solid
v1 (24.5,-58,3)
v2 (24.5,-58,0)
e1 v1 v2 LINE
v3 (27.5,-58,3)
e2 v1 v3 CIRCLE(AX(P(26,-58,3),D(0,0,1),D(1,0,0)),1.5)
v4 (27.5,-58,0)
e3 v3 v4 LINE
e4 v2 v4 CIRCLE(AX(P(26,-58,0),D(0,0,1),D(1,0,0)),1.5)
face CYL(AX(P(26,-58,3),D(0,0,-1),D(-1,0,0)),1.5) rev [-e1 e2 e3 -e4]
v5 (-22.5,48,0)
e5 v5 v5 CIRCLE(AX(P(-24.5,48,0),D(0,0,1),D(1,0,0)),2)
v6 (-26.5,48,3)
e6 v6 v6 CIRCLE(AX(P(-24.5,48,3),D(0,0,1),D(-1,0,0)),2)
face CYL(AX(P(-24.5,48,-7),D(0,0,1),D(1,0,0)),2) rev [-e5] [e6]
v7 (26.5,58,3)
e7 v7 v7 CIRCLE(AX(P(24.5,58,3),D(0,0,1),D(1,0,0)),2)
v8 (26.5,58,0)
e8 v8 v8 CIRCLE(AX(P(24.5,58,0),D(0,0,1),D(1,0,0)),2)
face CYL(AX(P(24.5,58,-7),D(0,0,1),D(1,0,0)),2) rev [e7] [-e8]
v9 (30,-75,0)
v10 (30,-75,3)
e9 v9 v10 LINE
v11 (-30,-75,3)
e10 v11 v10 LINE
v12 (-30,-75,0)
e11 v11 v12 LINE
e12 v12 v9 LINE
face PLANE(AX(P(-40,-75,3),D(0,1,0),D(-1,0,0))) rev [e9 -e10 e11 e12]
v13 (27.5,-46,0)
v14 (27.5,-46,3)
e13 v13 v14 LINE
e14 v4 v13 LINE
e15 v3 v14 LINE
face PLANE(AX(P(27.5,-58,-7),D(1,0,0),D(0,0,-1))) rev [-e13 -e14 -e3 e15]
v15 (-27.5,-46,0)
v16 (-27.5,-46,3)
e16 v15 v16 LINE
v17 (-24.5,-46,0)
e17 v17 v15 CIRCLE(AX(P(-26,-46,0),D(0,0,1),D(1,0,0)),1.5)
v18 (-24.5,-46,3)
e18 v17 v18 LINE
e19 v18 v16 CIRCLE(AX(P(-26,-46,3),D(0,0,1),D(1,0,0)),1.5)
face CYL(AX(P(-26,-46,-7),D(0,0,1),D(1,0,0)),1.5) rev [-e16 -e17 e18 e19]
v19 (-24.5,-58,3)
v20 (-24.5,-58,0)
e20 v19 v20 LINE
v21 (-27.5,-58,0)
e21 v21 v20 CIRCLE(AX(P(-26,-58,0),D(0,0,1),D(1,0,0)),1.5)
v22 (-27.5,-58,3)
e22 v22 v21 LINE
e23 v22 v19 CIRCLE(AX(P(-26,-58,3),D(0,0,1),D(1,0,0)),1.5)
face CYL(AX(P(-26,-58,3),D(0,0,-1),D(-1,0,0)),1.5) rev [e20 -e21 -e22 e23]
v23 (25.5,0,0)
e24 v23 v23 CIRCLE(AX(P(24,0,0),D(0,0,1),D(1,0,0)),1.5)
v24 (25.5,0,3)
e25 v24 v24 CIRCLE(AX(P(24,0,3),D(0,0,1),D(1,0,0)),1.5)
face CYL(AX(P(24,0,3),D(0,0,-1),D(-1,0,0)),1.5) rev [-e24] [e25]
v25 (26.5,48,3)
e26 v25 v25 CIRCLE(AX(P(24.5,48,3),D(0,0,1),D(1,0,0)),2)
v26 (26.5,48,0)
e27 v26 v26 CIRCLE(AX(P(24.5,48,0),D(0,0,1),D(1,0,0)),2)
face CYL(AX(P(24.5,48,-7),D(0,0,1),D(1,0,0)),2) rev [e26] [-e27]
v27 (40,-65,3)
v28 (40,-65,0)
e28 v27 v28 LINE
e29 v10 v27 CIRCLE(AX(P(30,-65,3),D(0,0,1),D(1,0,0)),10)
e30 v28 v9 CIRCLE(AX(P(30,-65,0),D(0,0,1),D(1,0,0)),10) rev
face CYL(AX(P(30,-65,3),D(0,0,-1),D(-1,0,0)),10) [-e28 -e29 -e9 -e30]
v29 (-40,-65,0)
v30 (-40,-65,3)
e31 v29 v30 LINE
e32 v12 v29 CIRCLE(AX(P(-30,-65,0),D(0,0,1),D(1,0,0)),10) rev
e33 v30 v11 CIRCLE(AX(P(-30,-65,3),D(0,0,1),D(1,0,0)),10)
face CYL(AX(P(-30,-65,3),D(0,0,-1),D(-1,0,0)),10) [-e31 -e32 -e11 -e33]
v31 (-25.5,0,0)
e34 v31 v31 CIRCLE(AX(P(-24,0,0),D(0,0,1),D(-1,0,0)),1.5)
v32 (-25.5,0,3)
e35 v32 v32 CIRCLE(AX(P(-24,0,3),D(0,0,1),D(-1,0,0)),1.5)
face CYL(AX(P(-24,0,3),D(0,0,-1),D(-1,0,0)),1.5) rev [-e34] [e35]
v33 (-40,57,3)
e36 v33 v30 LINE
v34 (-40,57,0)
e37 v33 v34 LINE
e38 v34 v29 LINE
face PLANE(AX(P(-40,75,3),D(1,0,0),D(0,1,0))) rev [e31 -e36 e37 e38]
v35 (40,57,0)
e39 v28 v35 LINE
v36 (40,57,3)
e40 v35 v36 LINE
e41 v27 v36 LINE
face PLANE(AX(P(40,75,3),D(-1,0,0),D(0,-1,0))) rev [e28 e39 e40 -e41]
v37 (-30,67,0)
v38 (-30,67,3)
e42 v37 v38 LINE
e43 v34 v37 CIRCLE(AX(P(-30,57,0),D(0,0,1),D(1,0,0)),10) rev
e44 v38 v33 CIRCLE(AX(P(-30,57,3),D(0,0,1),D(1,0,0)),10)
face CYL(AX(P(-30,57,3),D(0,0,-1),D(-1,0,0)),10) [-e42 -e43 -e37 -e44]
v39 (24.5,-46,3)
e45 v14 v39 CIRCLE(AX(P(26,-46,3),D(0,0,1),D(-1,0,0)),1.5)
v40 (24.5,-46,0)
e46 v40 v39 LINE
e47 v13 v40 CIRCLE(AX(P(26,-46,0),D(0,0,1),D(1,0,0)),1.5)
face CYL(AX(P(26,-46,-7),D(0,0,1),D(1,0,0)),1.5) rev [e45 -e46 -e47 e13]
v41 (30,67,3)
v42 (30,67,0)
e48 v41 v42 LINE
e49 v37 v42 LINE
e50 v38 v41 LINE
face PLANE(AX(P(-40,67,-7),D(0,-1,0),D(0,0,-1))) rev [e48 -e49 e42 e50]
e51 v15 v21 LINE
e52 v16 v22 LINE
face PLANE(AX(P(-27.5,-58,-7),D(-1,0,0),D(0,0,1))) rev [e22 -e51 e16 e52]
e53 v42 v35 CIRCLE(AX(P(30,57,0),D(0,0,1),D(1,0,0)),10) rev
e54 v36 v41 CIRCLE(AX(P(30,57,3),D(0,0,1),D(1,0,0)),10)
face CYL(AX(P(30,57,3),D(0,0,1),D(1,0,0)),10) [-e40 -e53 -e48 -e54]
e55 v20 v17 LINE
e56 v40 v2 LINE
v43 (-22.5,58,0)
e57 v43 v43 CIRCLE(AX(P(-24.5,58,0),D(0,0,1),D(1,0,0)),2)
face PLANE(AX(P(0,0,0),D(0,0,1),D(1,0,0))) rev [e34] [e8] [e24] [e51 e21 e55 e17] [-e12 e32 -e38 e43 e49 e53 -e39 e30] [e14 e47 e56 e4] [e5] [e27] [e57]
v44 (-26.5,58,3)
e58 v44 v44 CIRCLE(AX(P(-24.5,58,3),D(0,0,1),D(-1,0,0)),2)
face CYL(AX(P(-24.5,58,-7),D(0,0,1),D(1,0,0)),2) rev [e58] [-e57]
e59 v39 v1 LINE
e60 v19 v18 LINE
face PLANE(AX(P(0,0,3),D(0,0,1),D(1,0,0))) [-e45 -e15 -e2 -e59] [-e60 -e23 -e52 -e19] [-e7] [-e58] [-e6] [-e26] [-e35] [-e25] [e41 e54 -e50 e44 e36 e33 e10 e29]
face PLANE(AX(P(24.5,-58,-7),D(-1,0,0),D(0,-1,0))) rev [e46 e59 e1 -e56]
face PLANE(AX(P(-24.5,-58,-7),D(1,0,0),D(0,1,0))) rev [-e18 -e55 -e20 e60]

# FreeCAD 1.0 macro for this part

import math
import FreeCAD as App
import Part
import Sketcher
Q = App.Units.Quantity


def edges_at(feature, points):
    """Names of the edges that pass closest to the given points."""
    edges = feature.Shape.Edges
    near = lambda p: min(range(len(edges)), key=lambda i: edges[i].distToShape(Part.Vertex(*p))[0])
    return sorted({f"Edge{near(p) + 1}" for p in points})

doc = App.newDocument("Part")
body = doc.addObject("PartDesign::Body", "Body")

# Sketch on XY plane
sketch1 = body.newObject("Sketcher::SketchObject", "Sketch")
sketch1.AttachmentSupport = (doc.getObject("XY_Plane"), [""])
sketch1.MapMode = "FlatFace"
sketch1.addGeometry([
    Part.LineSegment(App.Vector(-40, 75, 0), App.Vector(-40, -75, 0)),  # 0
    Part.LineSegment(App.Vector(-40, -75, 0), App.Vector(40, -75, 0)),  # 1
    Part.LineSegment(App.Vector(40, -75, 0), App.Vector(40, 75, 0)),  # 2
    Part.LineSegment(App.Vector(40, 75, 0), App.Vector(-40, 75, 0)),  # 3
    Part.Circle(App.Vector(-26, -58, 0), App.Vector(0, 0, 1), 1.5),  # 4
    Part.Circle(App.Vector(26, -58, 0), App.Vector(0, 0, 1), 1.5),  # 5
    Part.Circle(App.Vector(-24, 0, 0), App.Vector(0, 0, 1), 1.5),  # 6
    Part.Circle(App.Vector(-24.5, 48, 0), App.Vector(0, 0, 1), 1.5),  # 7
    Part.Circle(App.Vector(24, 0, 0), App.Vector(0, 0, 1), 1.5),  # 8
    Part.Circle(App.Vector(24.5, 48, 0), App.Vector(0, 0, 1), 1.5),  # 9
], False)
sketch1.addConstraint([
    Sketcher.Constraint("Coincident", 0, 2, 1, 1),
    Sketcher.Constraint("Coincident", 1, 2, 2, 1),
    Sketcher.Constraint("Coincident", 2, 2, 3, 1),
    Sketcher.Constraint("Coincident", 3, 2, 0, 1),
    Sketcher.Constraint("Vertical", 0),
    Sketcher.Constraint("Horizontal", 1),
    Sketcher.Constraint("Vertical", 2),
    Sketcher.Constraint("Horizontal", 3),
    Sketcher.Constraint("Equal", 4, 5),
    Sketcher.Constraint("Equal", 5, 6),
    Sketcher.Constraint("Equal", 6, 7),
    Sketcher.Constraint("Equal", 7, 8),
    Sketcher.Constraint("Equal", 8, 9),
    Sketcher.Constraint("Symmetric", 6, 3, 8, 3, -1, 1),
    Sketcher.Constraint("Symmetric", 0, 2, 2, 2, -1, 1),
    Sketcher.Constraint("Symmetric", 4, 3, 5, 3, -2),
    Sketcher.Constraint("Symmetric", 7, 3, 9, 3, -2),
    Sketcher.Constraint("PointOnObject", 6, 3, -1),
    Sketcher.Constraint("Diameter", 4, Q("3 mm")),
    Sketcher.Constraint("DistanceX", 1, 1, 1, 2, Q("80 mm")),
    Sketcher.Constraint("DistanceY", 0, 2, 0, 1, Q("150 mm")),
    Sketcher.Constraint("DistanceX", 4, 3, -1, 1, Q("26 mm")),
    Sketcher.Constraint("DistanceY", 4, 3, -1, 1, Q("58 mm")),
    Sketcher.Constraint("DistanceX", 6, 3, -1, 1, Q("24 mm")),
    Sketcher.Constraint("DistanceY", -1, 1, 7, 3, Q("48 mm")),
    Sketcher.Constraint("DistanceX", 7, 3, 9, 3, Q("49 mm")),
])
pad1 = body.newObject("PartDesign::Pad", "Pad")
pad1.Profile = sketch1
pad1.Length = 3

# Sketch on XY plane
sketch2 = body.newObject("Sketcher::SketchObject", "Sketch001")
sketch2.AttachmentSupport = (doc.getObject("XY_Plane"), [""])
sketch2.MapMode = "FlatFace"
sketch2.AttachmentOffset = App.Placement(App.Vector(0, 0, -7), App.Rotation())
sketch2.addGeometry([
    Part.LineSegment(App.Vector(-27.5, -46, 0), App.Vector(-27.5, -58, 0)),  # 0
    Part.ArcOfCircle(Part.Circle(App.Vector(-26, -58, 0), App.Vector(0, 0, 1), 1.5), math.radians(180), math.radians(360)),  # 1
    Part.LineSegment(App.Vector(-24.5, -58, 0), App.Vector(-24.5, -46, 0)),  # 2
    Part.ArcOfCircle(Part.Circle(App.Vector(-26, -46, 0), App.Vector(0, 0, 1), 1.5), math.radians(0), math.radians(180)),  # 3
    Part.LineSegment(App.Vector(27.5, -58, 0), App.Vector(27.5, -46, 0)),  # 4
    Part.ArcOfCircle(Part.Circle(App.Vector(26, -46, 0), App.Vector(0, 0, 1), 1.5), math.radians(0), math.radians(180)),  # 5
    Part.LineSegment(App.Vector(24.5, -46, 0), App.Vector(24.5, -58, 0)),  # 6
    Part.ArcOfCircle(Part.Circle(App.Vector(26, -58, 0), App.Vector(0, 0, 1), 1.5), math.radians(180), math.radians(360)),  # 7
], False)
sketch2.addConstraint([
    Sketcher.Constraint("Tangent", 0, 2, 1, 1),
    Sketcher.Constraint("Tangent", 1, 2, 2, 1),
    Sketcher.Constraint("Tangent", 2, 2, 3, 1),
    Sketcher.Constraint("Tangent", 3, 2, 0, 1),
    Sketcher.Constraint("Tangent", 4, 2, 5, 1),
    Sketcher.Constraint("Tangent", 5, 2, 6, 1),
    Sketcher.Constraint("Tangent", 6, 2, 7, 1),
    Sketcher.Constraint("Tangent", 7, 2, 4, 1),
    Sketcher.Constraint("Vertical", 0),
    Sketcher.Constraint("Vertical", 2),
    Sketcher.Constraint("Vertical", 4),
    Sketcher.Constraint("Vertical", 6),
    Sketcher.Constraint("Equal", 3, 5),
    Sketcher.Constraint("Symmetric", 3, 3, 5, 3, -2),
    Sketcher.Constraint("Horizontal", 1, 3, 7, 3),
    Sketcher.Constraint("Radius", 1, Q("1.5 mm")),
    Sketcher.Constraint("DistanceY", 0, 2, 0, 1, Q("12 mm")),
    Sketcher.Constraint("DistanceX", 1, 3, -1, 1, Q("26 mm")),
    Sketcher.Constraint("DistanceY", 1, 3, -1, 1, Q("58 mm")),
])
pocket1 = body.newObject("PartDesign::Pocket", "Pocket")
pocket1.Profile = sketch2
pocket1.Length = 10
pocket1.Reversed = True

# Sketch on XY plane
sketch3 = body.newObject("Sketcher::SketchObject", "Sketch002")
sketch3.AttachmentSupport = (doc.getObject("XY_Plane"), [""])
sketch3.MapMode = "FlatFace"
sketch3.AttachmentOffset = App.Placement(App.Vector(0, 0, 3), App.Rotation())
sketch3.addGeometry([
    Part.Circle(App.Vector(24.5, 58, 0), App.Vector(0, 0, 1), 2),
    Part.Circle(App.Vector(24.5, 48, 0), App.Vector(0, 0, 1), 2),
    Part.Circle(App.Vector(-24.5, 48, 0), App.Vector(0, 0, 1), 2),
    Part.Circle(App.Vector(-24.5, 58, 0), App.Vector(0, 0, 1), 2),
], False)
sketch3.addConstraint([
    Sketcher.Constraint("Equal", 0, 1),
    Sketcher.Constraint("Equal", 1, 2),
    Sketcher.Constraint("Equal", 2, 3),
    Sketcher.Constraint("Symmetric", 1, 3, 2, 3, -2),
    Sketcher.Constraint("Symmetric", 0, 3, 3, 3, -2),
    Sketcher.Constraint("Vertical", 0, 3, 1, 3),
    Sketcher.Constraint("Diameter", 0, Q("4 mm")),
    Sketcher.Constraint("DistanceY", -1, 1, 0, 3, Q("58 mm")),
    Sketcher.Constraint("DistanceY", -1, 1, 1, 3, Q("48 mm")),
    Sketcher.Constraint("DistanceX", 2, 3, 1, 3, Q("49 mm")),
])
pocket2 = body.newObject("PartDesign::Pocket", "Pocket001")
pocket2.Profile = sketch3
pocket2.Length = 10

# Sketch on XY plane
sketch4 = body.newObject("Sketcher::SketchObject", "Sketch003")
sketch4.AttachmentSupport = (doc.getObject("XY_Plane"), [""])
sketch4.MapMode = "FlatFace"
sketch4.AttachmentOffset = App.Placement(App.Vector(0, 0, 3), App.Rotation())
sketch4.addGeometry([
    Part.LineSegment(App.Vector(-40, 75, 0), App.Vector(-40, 67, 0)),
    Part.LineSegment(App.Vector(-40, 67, 0), App.Vector(47, 67, 0)),
    Part.LineSegment(App.Vector(47, 67, 0), App.Vector(47, 75, 0)),
    Part.LineSegment(App.Vector(47, 75, 0), App.Vector(-40, 75, 0)),
], False)
sketch4.addConstraint([
    Sketcher.Constraint("Coincident", 0, 2, 1, 1),
    Sketcher.Constraint("Coincident", 1, 2, 2, 1),
    Sketcher.Constraint("Coincident", 2, 2, 3, 1),
    Sketcher.Constraint("Coincident", 3, 2, 0, 1),
    Sketcher.Constraint("Vertical", 0),
    Sketcher.Constraint("Horizontal", 1),
    Sketcher.Constraint("Vertical", 2),
    Sketcher.Constraint("Horizontal", 3),
    Sketcher.Constraint("DistanceY", 0, 2, 0, 1, Q("8 mm")),
    Sketcher.Constraint("DistanceX", 0, 2, -1, 1, Q("40 mm")),
    Sketcher.Constraint("DistanceY", -1, 1, 0, 2, Q("67 mm")),
    Sketcher.Constraint("DistanceX", 1, 1, 1, 2, Q("87.19 mm")),
])
pocket3 = body.newObject("PartDesign::Pocket", "Pocket002")
pocket3.Profile = sketch4
pocket3.Length = 10
doc.recompute()

fillet = body.newObject("PartDesign::Fillet", "Fillet")
fillet.Base = (pocket3, edges_at(pocket3, [
    (-40, 67, 1.5),
    (40, 67, 1.5),
    (40, -75, 1.5),
    (-40, -75, 1.5),
]))
fillet.Radius = 10

doc.recompute()
